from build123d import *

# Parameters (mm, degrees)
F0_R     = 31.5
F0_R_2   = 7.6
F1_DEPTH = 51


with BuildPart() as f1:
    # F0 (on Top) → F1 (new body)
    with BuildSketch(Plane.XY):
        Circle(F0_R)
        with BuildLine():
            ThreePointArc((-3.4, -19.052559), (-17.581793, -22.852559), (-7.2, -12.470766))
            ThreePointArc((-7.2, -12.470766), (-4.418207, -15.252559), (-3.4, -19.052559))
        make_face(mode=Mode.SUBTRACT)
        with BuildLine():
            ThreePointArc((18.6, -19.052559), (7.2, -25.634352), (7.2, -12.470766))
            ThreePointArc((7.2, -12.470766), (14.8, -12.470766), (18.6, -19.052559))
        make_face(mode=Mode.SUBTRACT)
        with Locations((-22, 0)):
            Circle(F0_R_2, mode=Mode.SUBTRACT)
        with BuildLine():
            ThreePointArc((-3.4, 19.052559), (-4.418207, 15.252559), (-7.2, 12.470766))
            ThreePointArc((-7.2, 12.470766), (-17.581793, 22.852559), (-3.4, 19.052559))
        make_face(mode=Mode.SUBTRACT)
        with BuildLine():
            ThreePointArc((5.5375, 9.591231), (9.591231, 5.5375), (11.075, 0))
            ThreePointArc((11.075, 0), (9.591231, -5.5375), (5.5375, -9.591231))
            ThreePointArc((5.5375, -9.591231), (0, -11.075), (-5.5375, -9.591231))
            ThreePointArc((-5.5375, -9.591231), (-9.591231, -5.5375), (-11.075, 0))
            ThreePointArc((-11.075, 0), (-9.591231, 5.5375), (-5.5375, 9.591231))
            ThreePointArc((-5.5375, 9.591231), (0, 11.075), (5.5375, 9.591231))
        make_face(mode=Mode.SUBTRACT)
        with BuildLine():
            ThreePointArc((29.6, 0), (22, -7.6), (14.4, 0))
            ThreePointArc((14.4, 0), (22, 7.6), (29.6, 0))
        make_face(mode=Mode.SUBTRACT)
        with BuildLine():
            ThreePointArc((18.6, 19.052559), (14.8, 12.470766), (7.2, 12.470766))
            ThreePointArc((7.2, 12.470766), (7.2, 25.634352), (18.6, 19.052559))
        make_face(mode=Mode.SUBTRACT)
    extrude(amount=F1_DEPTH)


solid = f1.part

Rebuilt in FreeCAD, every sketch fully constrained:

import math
import FreeCAD as App
import Part
import Sketcher
Q = App.Units.Quantity

doc = App.newDocument("Part")
body = doc.addObject("PartDesign::Body", "Body")

sketch1 = body.newObject("Sketcher::SketchObject", "Sketch")
sketch1.AttachmentSupport = (doc.getObject("XY_Plane"), [""])
sketch1.MapMode = "FlatFace"
sketch1.addGeometry([
    Part.Circle(App.Vector(0, 0, 0), App.Vector(0, 0, 1), 32),
    Part.ArcOfCircle(Part.Circle(App.Vector(-11, -19, 0), App.Vector(0, 0, 1), 8), math.radians(0), math.radians(60)),
    Part.ArcOfCircle(Part.Circle(App.Vector(-11, -19, 0), App.Vector(0, 0, 1), 8), math.radians(60), math.radians(360)),
    Part.Circle(App.Vector(-22, 0, 0), App.Vector(0, 0, 1), 8),
    Part.ArcOfCircle(Part.Circle(App.Vector(0, 0, 0), App.Vector(0, 0, 1), 11), math.radians(60), math.radians(120)),
    Part.ArcOfCircle(Part.Circle(App.Vector(0, 0, 0), App.Vector(0, 0, 1), 11), math.radians(0), math.radians(60)),
    Part.ArcOfCircle(Part.Circle(App.Vector(0, 0, 0), App.Vector(0, 0, 1), 11), math.radians(-60), math.radians(0)),
    Part.ArcOfCircle(Part.Circle(App.Vector(0, 0, 0), App.Vector(0, 0, 1), 11), math.radians(-120), math.radians(-60)),
    Part.ArcOfCircle(Part.Circle(App.Vector(0, 0, 0), App.Vector(0, 0, 1), 11), math.radians(-180), math.radians(-120)),
    Part.ArcOfCircle(Part.Circle(App.Vector(0, 0, 0), App.Vector(0, 0, 1), 11), math.radians(120), math.radians(180)),
    Part.ArcOfCircle(Part.Circle(App.Vector(11, -19, 0), App.Vector(0, 0, 1), 8), math.radians(0), math.radians(120)),
    Part.ArcOfCircle(Part.Circle(App.Vector(11, -19, 0), App.Vector(0, 0, 1), 8), math.radians(120), math.radians(360)),
    Part.Circle(App.Vector(22, 0, 0), App.Vector(0, 0, 1), 8),
    Part.ArcOfCircle(Part.Circle(App.Vector(-11, 19, 0), App.Vector(0, 0, 1), 8), math.radians(0), math.radians(300)),
    Part.ArcOfCircle(Part.Circle(App.Vector(-11, 19, 0), App.Vector(0, 0, 1), 8), math.radians(-60), math.radians(0)),
    Part.ArcOfCircle(Part.Circle(App.Vector(11, 19, 0), App.Vector(0, 0, 1), 8), math.radians(0), math.radians(240)),
    Part.ArcOfCircle(Part.Circle(App.Vector(11, 19, 0), App.Vector(0, 0, 1), 8), math.radians(-120), math.radians(0)),
], False)
sketch1.addConstraint([
    Sketcher.Constraint("Tangent", 1, 1, 2, 2),
    Sketcher.Constraint("Coincident", 2, 1, 1, 2),
    Sketcher.Constraint("Tangent", 4, 1, 5, 2),
    Sketcher.Constraint("Tangent", 5, 1, 6, 2),
    Sketcher.Constraint("Tangent", 6, 1, 7, 2),
    Sketcher.Constraint("Tangent", 7, 1, 8, 2),
    Sketcher.Constraint("Tangent", 8, 1, 9, 2),
    Sketcher.Constraint("Tangent", 9, 1, 4, 2),
    Sketcher.Constraint("Tangent", 10, 1, 11, 2),
    Sketcher.Constraint("Coincident", 11, 1, 10, 2),
    Sketcher.Constraint("Tangent", 13, 1, 14, 2),
    Sketcher.Constraint("Coincident", 14, 1, 13, 2),
    Sketcher.Constraint("Tangent", 15, 1, 16, 2),
    Sketcher.Constraint("Coincident", 16, 1, 15, 2),
    Sketcher.Constraint("Coincident", 0, 3, -1, 1),
    Sketcher.Constraint("Coincident", 4, 3, -1, 1),
    Sketcher.Constraint("Coincident", 6, 3, -1, 1),
    Sketcher.Constraint("Equal", 2, 3),
    Sketcher.Constraint("Equal", 4, 7),
    Sketcher.Constraint("Equal", 3, 10),
    Sketcher.Constraint("Equal", 11, 12),
    Sketcher.Constraint("Equal", 12, 13),
    Sketcher.Constraint("Equal", 14, 15),
    Sketcher.Constraint("Symmetric", 3, 3, 12, 3, -1, 1),
    Sketcher.Constraint("Symmetric", 10, 3, 13, 3, -1, 1),
    Sketcher.Constraint("Symmetric", 1, 3, 15, 3, -1, 1),
    Sketcher.Constraint("Symmetric", 1, 3, 10, 3, -2),
    Sketcher.Constraint("PointOnObject", 3, 3, -1),
    Sketcher.Constraint("PointOnObject", 5, 1, -1),
    Sketcher.Constraint("PointOnObject", 8, 1, -1),
    Sketcher.Constraint("Horizontal", 11, 3, 1, 1),
    Sketcher.Constraint("Horizontal", 6, 1, 7, 1),
    Sketcher.Constraint("Horizontal", 4, 1, 9, 1),
    Sketcher.Constraint("Horizontal", 1, 1, 10, 1),
    Sketcher.Constraint("Horizontal", 2, 1, 11, 1),
    Sketcher.Constraint("Horizontal", 16, 3, 13, 1),
    Sketcher.Constraint("Horizontal", 13, 1, 15, 1),
    Sketcher.Constraint("Horizontal", 14, 1, 16, 1),
    Sketcher.Constraint("Vertical", 4, 1, 6, 1),
    Sketcher.Constraint("Vertical", 2, 1, 14, 1),
    Sketcher.Constraint("Diameter", 0, Q("63 mm")),
    Sketcher.Constraint("Diameter", 3, Q("15.2 mm")),
    Sketcher.Constraint("DistanceX", 1, 3, -1, 1, Q("11 mm")),
    Sketcher.Constraint("DistanceX", 3, 3, -1, 1, Q("22 mm")),
    Sketcher.Constraint("Radius", 5, Q("11.075001 mm")),
    Sketcher.Constraint("DistanceX", 2, 1, -1, 1, Q("7.2 mm")),
    Sketcher.Constraint("DistanceX", -1, 1, 4, 1, Q("5.5375 mm")),
    Sketcher.Constraint("DistanceY", 1, 3, -1, 1, Q("19.052559 mm")),
])
pad1 = body.newObject("PartDesign::Pad", "Pad")
pad1.Profile = sketch1
pad1.Length = 51

doc.recompute()
